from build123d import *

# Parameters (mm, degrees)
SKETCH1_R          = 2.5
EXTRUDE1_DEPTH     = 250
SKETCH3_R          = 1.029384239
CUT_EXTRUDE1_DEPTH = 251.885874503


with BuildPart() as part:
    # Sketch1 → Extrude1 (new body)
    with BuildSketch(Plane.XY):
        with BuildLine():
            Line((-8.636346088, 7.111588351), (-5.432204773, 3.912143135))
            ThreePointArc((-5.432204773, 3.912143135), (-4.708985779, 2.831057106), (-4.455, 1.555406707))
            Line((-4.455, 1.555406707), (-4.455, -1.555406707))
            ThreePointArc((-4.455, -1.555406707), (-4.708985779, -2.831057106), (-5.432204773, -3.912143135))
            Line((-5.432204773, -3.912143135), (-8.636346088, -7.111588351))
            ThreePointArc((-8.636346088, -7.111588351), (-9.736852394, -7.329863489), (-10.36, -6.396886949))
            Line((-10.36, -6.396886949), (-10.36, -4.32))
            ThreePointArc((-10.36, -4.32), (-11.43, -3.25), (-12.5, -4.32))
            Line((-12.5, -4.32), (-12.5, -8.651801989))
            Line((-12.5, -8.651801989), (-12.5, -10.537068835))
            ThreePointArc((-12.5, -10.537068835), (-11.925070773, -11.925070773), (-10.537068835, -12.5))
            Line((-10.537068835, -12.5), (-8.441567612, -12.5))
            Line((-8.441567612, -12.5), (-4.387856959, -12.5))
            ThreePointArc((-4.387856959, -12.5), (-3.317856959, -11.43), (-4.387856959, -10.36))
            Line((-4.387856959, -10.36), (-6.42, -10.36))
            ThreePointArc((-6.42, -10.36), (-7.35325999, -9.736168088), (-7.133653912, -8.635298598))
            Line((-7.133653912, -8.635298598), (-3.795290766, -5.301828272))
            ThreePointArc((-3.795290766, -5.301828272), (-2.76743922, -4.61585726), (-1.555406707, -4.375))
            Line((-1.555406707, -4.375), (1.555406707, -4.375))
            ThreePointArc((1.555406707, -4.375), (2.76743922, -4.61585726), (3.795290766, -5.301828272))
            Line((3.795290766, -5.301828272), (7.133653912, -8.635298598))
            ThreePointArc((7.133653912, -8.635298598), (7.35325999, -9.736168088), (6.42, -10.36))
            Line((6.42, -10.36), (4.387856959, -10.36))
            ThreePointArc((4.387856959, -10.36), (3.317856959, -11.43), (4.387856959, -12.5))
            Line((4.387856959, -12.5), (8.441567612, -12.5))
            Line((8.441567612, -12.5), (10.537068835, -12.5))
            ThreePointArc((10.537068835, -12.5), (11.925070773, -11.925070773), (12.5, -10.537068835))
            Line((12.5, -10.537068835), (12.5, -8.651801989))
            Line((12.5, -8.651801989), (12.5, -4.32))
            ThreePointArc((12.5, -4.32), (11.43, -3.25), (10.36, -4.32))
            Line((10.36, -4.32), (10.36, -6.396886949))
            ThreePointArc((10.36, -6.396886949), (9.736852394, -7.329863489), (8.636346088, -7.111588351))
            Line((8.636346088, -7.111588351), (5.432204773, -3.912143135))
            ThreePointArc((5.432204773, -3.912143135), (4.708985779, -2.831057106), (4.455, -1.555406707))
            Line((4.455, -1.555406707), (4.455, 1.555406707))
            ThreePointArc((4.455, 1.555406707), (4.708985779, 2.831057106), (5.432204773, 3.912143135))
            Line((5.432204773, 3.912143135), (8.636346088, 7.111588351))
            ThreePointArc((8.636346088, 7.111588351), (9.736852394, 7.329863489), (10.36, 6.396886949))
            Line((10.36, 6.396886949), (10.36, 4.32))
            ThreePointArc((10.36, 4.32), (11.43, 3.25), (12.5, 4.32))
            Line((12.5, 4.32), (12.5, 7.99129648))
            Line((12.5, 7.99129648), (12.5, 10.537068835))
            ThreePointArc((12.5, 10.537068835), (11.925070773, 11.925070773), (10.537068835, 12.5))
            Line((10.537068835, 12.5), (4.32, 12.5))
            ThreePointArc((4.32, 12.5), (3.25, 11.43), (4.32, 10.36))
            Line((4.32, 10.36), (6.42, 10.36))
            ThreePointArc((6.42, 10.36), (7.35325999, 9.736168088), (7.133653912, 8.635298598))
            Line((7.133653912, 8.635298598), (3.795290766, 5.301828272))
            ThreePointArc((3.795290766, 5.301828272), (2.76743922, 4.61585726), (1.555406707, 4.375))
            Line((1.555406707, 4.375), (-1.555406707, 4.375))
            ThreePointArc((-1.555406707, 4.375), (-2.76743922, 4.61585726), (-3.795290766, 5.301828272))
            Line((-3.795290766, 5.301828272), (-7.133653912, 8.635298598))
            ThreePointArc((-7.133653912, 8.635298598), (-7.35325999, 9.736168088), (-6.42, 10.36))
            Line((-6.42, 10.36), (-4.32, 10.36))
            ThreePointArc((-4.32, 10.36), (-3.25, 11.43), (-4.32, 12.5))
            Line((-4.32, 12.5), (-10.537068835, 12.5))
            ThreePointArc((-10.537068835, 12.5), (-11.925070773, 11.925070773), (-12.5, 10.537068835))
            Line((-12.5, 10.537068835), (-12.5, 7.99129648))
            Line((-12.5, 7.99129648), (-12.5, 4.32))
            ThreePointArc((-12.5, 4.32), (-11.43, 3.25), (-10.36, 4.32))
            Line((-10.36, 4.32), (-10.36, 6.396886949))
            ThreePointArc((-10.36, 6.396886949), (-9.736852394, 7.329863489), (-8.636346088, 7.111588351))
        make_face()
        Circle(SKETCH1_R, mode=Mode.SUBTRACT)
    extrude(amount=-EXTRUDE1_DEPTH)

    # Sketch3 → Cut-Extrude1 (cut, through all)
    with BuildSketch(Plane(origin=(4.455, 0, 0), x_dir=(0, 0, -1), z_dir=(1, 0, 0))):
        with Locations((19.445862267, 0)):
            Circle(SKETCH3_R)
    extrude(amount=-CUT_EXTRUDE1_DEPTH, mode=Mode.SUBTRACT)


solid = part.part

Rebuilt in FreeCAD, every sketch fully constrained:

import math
import FreeCAD as App
import Part
import Sketcher
from FreeCAD import Vector
Q = App.Units.Quantity

doc = App.newDocument("Part")
params = doc.addObject("Spreadsheet::Sheet", "Params")
for row, (alias, value) in enumerate([
    ("sketch1_diameter", "5 mm"),
    ("sketch1_radius", "1.01 mm"),
    ("sketch1_radius2", "1.07 mm"),
    ("sketch1_radius3", "3.17 mm"),
    ("sketch1_width", "2.1 mm"),
    ("pad1_length", "250 mm"),
], start=1):
    params.set(f"A{row}", alias)
    params.set(f"B{row}", "=" + value)
    params.setAlias(f"B{row}", alias)

body = doc.addObject("PartDesign::Body", "Body")

# Sketch on XY plane
sketch1 = doc.addObject("Sketcher::SketchObject", "Sketch")
body.addObject(sketch1)
sketch1.AttachmentSupport = (doc.XY_Plane, [""])
sketch1.MapMode = "FlatFace"
sketch1.addGeometry(Part.LineSegment(Vector(-8.636346, 7.111588, 0), Vector(-5.432205, 3.912143, 0)), False)
sketch1.addGeometry(Part.ArcOfCircle(Part.Circle(Vector(-7.785487, 1.555407, 0), Vector(0, 0, 1), 3.330487), math.radians(0), math.radians(45.042018)), False)
sketch1.addGeometry(Part.LineSegment(Vector(-4.455, 1.555407, 0), Vector(-4.455, -1.555407, 0)), False)
sketch1.addGeometry(Part.ArcOfCircle(Part.Circle(Vector(-7.785487, -1.555407, 0), Vector(0, 0, 1), 3.330487), math.radians(-45.042018), math.radians(0)), False)
sketch1.addGeometry(Part.LineSegment(Vector(-5.432205, -3.912143, 0), Vector(-8.636346, -7.111588, 0)), False)
sketch1.addGeometry(Part.ArcOfCircle(Part.Circle(Vector(-9.35, -6.396887, 0), Vector(0, 0, 1), 1.01), math.radians(-180), math.radians(-45.042018)), False)
sketch1.addGeometry(Part.LineSegment(Vector(-10.36, -6.396887, 0), Vector(-10.36, -4.32, 0)), False)
sketch1.addGeometry(Part.ArcOfCircle(Part.Circle(Vector(-11.43, -4.32, 0), Vector(0, 0, 1), 1.07), math.radians(0), math.radians(180)), False)
sketch1.addGeometry(Part.LineSegment(Vector(-12.5, -4.32, 0), Vector(-12.5, -10.537069, 0)), False)
sketch1.addGeometry(Part.ArcOfCircle(Part.Circle(Vector(-10.537069, -10.537069, 0), Vector(0, 0, 1), 1.962931), math.radians(180), math.radians(270)), False)
sketch1.addGeometry(Part.LineSegment(Vector(-10.537069, -12.5, 0), Vector(-4.387857, -12.5, 0)), False)
sketch1.addGeometry(Part.ArcOfCircle(Part.Circle(Vector(-4.387857, -11.43, 0), Vector(0, 0, 1), 1.07), math.radians(-90), math.radians(90)), False)
sketch1.addGeometry(Part.LineSegment(Vector(-4.387857, -10.36, 0), Vector(-6.42, -10.36, 0)), False)
sketch1.addGeometry(Part.ArcOfCircle(Part.Circle(Vector(-6.42, -9.35, 0), Vector(0, 0, 1), 1.01), math.radians(134.957982), math.radians(270)), False)
sketch1.addGeometry(Part.LineSegment(Vector(-7.133654, -8.635299, 0), Vector(-3.795291, -5.301828, 0)), False)
sketch1.addGeometry(Part.ArcOfCircle(Part.Circle(Vector(-1.555407, -7.545, 0), Vector(0, 0, 1), 3.17), math.radians(90), math.radians(134.957982)), False)
sketch1.addGeometry(Part.LineSegment(Vector(-1.555407, -4.375, 0), Vector(1.555407, -4.375, 0)), False)
sketch1.addGeometry(Part.ArcOfCircle(Part.Circle(Vector(1.555407, -7.545, 0), Vector(0, 0, 1), 3.17), math.radians(45.042018), math.radians(90)), False)
sketch1.addGeometry(Part.LineSegment(Vector(3.795291, -5.301828, 0), Vector(7.133654, -8.635299, 0)), False)
sketch1.addGeometry(Part.ArcOfCircle(Part.Circle(Vector(6.42, -9.35, 0), Vector(0, 0, 1), 1.01), math.radians(-90), math.radians(45.042018)), False)
sketch1.addGeometry(Part.LineSegment(Vector(6.42, -10.36, 0), Vector(4.387857, -10.36, 0)), False)
sketch1.addGeometry(Part.ArcOfCircle(Part.Circle(Vector(4.387857, -11.43, 0), Vector(0, 0, 1), 1.07), math.radians(90), math.radians(270)), False)
sketch1.addGeometry(Part.LineSegment(Vector(4.387857, -12.5, 0), Vector(10.537069, -12.5, 0)), False)
sketch1.addGeometry(Part.ArcOfCircle(Part.Circle(Vector(10.537069, -10.537069, 0), Vector(0, 0, 1), 1.962931), math.radians(-90), math.radians(0)), False)
sketch1.addGeometry(Part.LineSegment(Vector(12.5, -10.537069, 0), Vector(12.5, -4.32, 0)), False)
sketch1.addGeometry(Part.ArcOfCircle(Part.Circle(Vector(11.43, -4.32, 0), Vector(0, 0, 1), 1.07), math.radians(0), math.radians(180)), False)
sketch1.addGeometry(Part.LineSegment(Vector(10.36, -4.32, 0), Vector(10.36, -6.396887, 0)), False)
sketch1.addGeometry(Part.ArcOfCircle(Part.Circle(Vector(9.35, -6.396887, 0), Vector(0, 0, 1), 1.01), math.radians(-134.957982), math.radians(0)), False)
sketch1.addGeometry(Part.LineSegment(Vector(8.636346, -7.111588, 0), Vector(5.432205, -3.912143, 0)), False)
sketch1.addGeometry(Part.ArcOfCircle(Part.Circle(Vector(7.785487, -1.555407, 0), Vector(0, 0, 1), 3.330487), math.radians(180), math.radians(225.042018)), False)
sketch1.addGeometry(Part.LineSegment(Vector(4.455, -1.555407, 0), Vector(4.455, 1.555407, 0)), False)
sketch1.addGeometry(Part.ArcOfCircle(Part.Circle(Vector(7.785487, 1.555407, 0), Vector(0, 0, 1), 3.330487), math.radians(134.957982), math.radians(180)), False)
sketch1.addGeometry(Part.LineSegment(Vector(5.432205, 3.912143, 0), Vector(8.636346, 7.111588, 0)), False)
sketch1.addGeometry(Part.ArcOfCircle(Part.Circle(Vector(9.35, 6.396887, 0), Vector(0, 0, 1), 1.01), math.radians(0), math.radians(134.957982)), False)
sketch1.addGeometry(Part.LineSegment(Vector(10.36, 6.396887, 0), Vector(10.36, 4.32, 0)), False)
sketch1.addGeometry(Part.ArcOfCircle(Part.Circle(Vector(11.43, 4.32, 0), Vector(0, 0, 1), 1.07), math.radians(180), math.radians(360)), False)
sketch1.addGeometry(Part.LineSegment(Vector(12.5, 4.32, 0), Vector(12.5, 10.537069, 0)), False)
sketch1.addGeometry(Part.ArcOfCircle(Part.Circle(Vector(10.537069, 10.537069, 0), Vector(0, 0, 1), 1.962931), math.radians(0), math.radians(90)), False)
sketch1.addGeometry(Part.LineSegment(Vector(10.537069, 12.5, 0), Vector(4.32, 12.5, 0)), False)
sketch1.addGeometry(Part.ArcOfCircle(Part.Circle(Vector(4.32, 11.43, 0), Vector(0, 0, 1), 1.07), math.radians(90), math.radians(270)), False)
sketch1.addGeometry(Part.LineSegment(Vector(4.32, 10.36, 0), Vector(6.42, 10.36, 0)), False)
sketch1.addGeometry(Part.ArcOfCircle(Part.Circle(Vector(6.42, 9.35, 0), Vector(0, 0, 1), 1.01), math.radians(-45.042018), math.radians(90)), False)
sketch1.addGeometry(Part.LineSegment(Vector(7.133654, 8.635299, 0), Vector(3.795291, 5.301828, 0)), False)
sketch1.addGeometry(Part.ArcOfCircle(Part.Circle(Vector(1.555407, 7.545, 0), Vector(0, 0, 1), 3.17), math.radians(-90), math.radians(-45.042018)), False)
sketch1.addGeometry(Part.LineSegment(Vector(1.555407, 4.375, 0), Vector(-1.555407, 4.375, 0)), False)
sketch1.addGeometry(Part.ArcOfCircle(Part.Circle(Vector(-1.555407, 7.545, 0), Vector(0, 0, 1), 3.17), math.radians(-134.957982), math.radians(-90)), False)
sketch1.addGeometry(Part.LineSegment(Vector(-3.795291, 5.301828, 0), Vector(-7.133654, 8.635299, 0)), False)
sketch1.addGeometry(Part.ArcOfCircle(Part.Circle(Vector(-6.42, 9.35, 0), Vector(0, 0, 1), 1.01), math.radians(90), math.radians(225.042018)), False)
sketch1.addGeometry(Part.LineSegment(Vector(-6.42, 10.36, 0), Vector(-4.32, 10.36, 0)), False)
sketch1.addGeometry(Part.ArcOfCircle(Part.Circle(Vector(-4.32, 11.43, 0), Vector(0, 0, 1), 1.07), math.radians(-90), math.radians(90)), False)
sketch1.addGeometry(Part.LineSegment(Vector(-4.32, 12.5, 0), Vector(-10.537069, 12.5, 0)), False)
sketch1.addGeometry(Part.ArcOfCircle(Part.Circle(Vector(-10.537069, 10.537069, 0), Vector(0, 0, 1), 1.962931), math.radians(90), math.radians(180)), False)
sketch1.addGeometry(Part.LineSegment(Vector(-12.5, 10.537069, 0), Vector(-12.5, 4.32, 0)), False)
sketch1.addGeometry(Part.ArcOfCircle(Part.Circle(Vector(-11.43, 4.32, 0), Vector(0, 0, 1), 1.07), math.radians(180), math.radians(360)), False)
sketch1.addGeometry(Part.LineSegment(Vector(-10.36, 4.32, 0), Vector(-10.36, 6.396887, 0)), False)
sketch1.addGeometry(Part.ArcOfCircle(Part.Circle(Vector(-9.35, 6.396887, 0), Vector(0, 0, 1), 1.01), math.radians(45.042018), math.radians(180)), False)
sketch1.addGeometry(Part.Circle(Vector(0, 0, 0), Vector(0, 0, 1), 2.5), False)
sketch1.addConstraint(Sketcher.Constraint("Tangent", 0, 2, 1, 2))
sketch1.addConstraint(Sketcher.Constraint("Tangent", 1, 1, 2, 1))
sketch1.addConstraint(Sketcher.Constraint("Tangent", 2, 2, 3, 2))
sketch1.addConstraint(Sketcher.Constraint("Tangent", 3, 1, 4, 1))
sketch1.addConstraint(Sketcher.Constraint("Tangent", 4, 2, 5, 2))
sketch1.addConstraint(Sketcher.Constraint("Tangent", 5, 1, 6, 1))
sketch1.addConstraint(Sketcher.Constraint("Tangent", 6, 2, 7, 1))
sketch1.addConstraint(Sketcher.Constraint("Tangent", 7, 2, 8, 1))
sketch1.addConstraint(Sketcher.Constraint("Tangent", 8, 2, 9, 1))
sketch1.addConstraint(Sketcher.Constraint("Tangent", 9, 2, 10, 1))
sketch1.addConstraint(Sketcher.Constraint("Tangent", 10, 2, 11, 1))
sketch1.addConstraint(Sketcher.Constraint("Tangent", 11, 2, 12, 1))
sketch1.addConstraint(Sketcher.Constraint("Tangent", 12, 2, 13, 2))
sketch1.addConstraint(Sketcher.Constraint("Tangent", 13, 1, 14, 1))
sketch1.addConstraint(Sketcher.Constraint("Tangent", 14, 2, 15, 2))
sketch1.addConstraint(Sketcher.Constraint("Tangent", 15, 1, 16, 1))
sketch1.addConstraint(Sketcher.Constraint("Tangent", 16, 2, 17, 2))
sketch1.addConstraint(Sketcher.Constraint("Tangent", 17, 1, 18, 1))
sketch1.addConstraint(Sketcher.Constraint("Tangent", 18, 2, 19, 2))
sketch1.addConstraint(Sketcher.Constraint("Tangent", 19, 1, 20, 1))
sketch1.addConstraint(Sketcher.Constraint("Tangent", 20, 2, 21, 1))
sketch1.addConstraint(Sketcher.Constraint("Tangent", 21, 2, 22, 1))
sketch1.addConstraint(Sketcher.Constraint("Tangent", 22, 2, 23, 1))
sketch1.addConstraint(Sketcher.Constraint("Tangent", 23, 2, 24, 1))
sketch1.addConstraint(Sketcher.Constraint("Tangent", 24, 2, 25, 1))
sketch1.addConstraint(Sketcher.Constraint("Tangent", 25, 2, 26, 1))
sketch1.addConstraint(Sketcher.Constraint("Tangent", 26, 2, 27, 2))
sketch1.addConstraint(Sketcher.Constraint("Tangent", 27, 1, 28, 1))
sketch1.addConstraint(Sketcher.Constraint("Tangent", 28, 2, 29, 2))
sketch1.addConstraint(Sketcher.Constraint("Tangent", 29, 1, 30, 1))
sketch1.addConstraint(Sketcher.Constraint("Tangent", 30, 2, 31, 2))
sketch1.addConstraint(Sketcher.Constraint("Tangent", 31, 1, 32, 1))
sketch1.addConstraint(Sketcher.Constraint("Tangent", 32, 2, 33, 2))
sketch1.addConstraint(Sketcher.Constraint("Tangent", 33, 1, 34, 1))
sketch1.addConstraint(Sketcher.Constraint("Tangent", 34, 2, 35, 1))
sketch1.addConstraint(Sketcher.Constraint("Tangent", 35, 2, 36, 1))
sketch1.addConstraint(Sketcher.Constraint("Tangent", 36, 2, 37, 1))
sketch1.addConstraint(Sketcher.Constraint("Tangent", 37, 2, 38, 1))
sketch1.addConstraint(Sketcher.Constraint("Tangent", 38, 2, 39, 1))
sketch1.addConstraint(Sketcher.Constraint("Tangent", 39, 2, 40, 1))
sketch1.addConstraint(Sketcher.Constraint("Tangent", 40, 2, 41, 2))
sketch1.addConstraint(Sketcher.Constraint("Tangent", 41, 1, 42, 1))
sketch1.addConstraint(Sketcher.Constraint("Tangent", 42, 2, 43, 2))
sketch1.addConstraint(Sketcher.Constraint("Tangent", 43, 1, 44, 1))
sketch1.addConstraint(Sketcher.Constraint("Tangent", 44, 2, 45, 2))
sketch1.addConstraint(Sketcher.Constraint("Tangent", 45, 1, 46, 1))
sketch1.addConstraint(Sketcher.Constraint("Tangent", 46, 2, 47, 2))
sketch1.addConstraint(Sketcher.Constraint("Tangent", 47, 1, 48, 1))
sketch1.addConstraint(Sketcher.Constraint("Tangent", 48, 2, 49, 1))
sketch1.addConstraint(Sketcher.Constraint("Tangent", 49, 2, 50, 1))
sketch1.addConstraint(Sketcher.Constraint("Tangent", 50, 2, 51, 1))
sketch1.addConstraint(Sketcher.Constraint("Tangent", 51, 2, 52, 1))
sketch1.addConstraint(Sketcher.Constraint("Tangent", 52, 2, 53, 1))
sketch1.addConstraint(Sketcher.Constraint("Tangent", 53, 2, 54, 1))
sketch1.addConstraint(Sketcher.Constraint("Tangent", 54, 2, 55, 2))
sketch1.addConstraint(Sketcher.Constraint("Tangent", 55, 1, 0, 1))
sketch1.addConstraint(Sketcher.Constraint("Vertical", 2))
sketch1.addConstraint(Sketcher.Constraint("Vertical", 6))
sketch1.addConstraint(Sketcher.Constraint("Vertical", 8))
sketch1.addConstraint(Sketcher.Constraint("Horizontal", 10))
sketch1.addConstraint(Sketcher.Constraint("Horizontal", 12))
sketch1.addConstraint(Sketcher.Constraint("Horizontal", 16))
sketch1.addConstraint(Sketcher.Constraint("Horizontal", 20))
sketch1.addConstraint(Sketcher.Constraint("Horizontal", 22))
sketch1.addConstraint(Sketcher.Constraint("Vertical", 24))
sketch1.addConstraint(Sketcher.Constraint("Vertical", 26))
sketch1.addConstraint(Sketcher.Constraint("Vertical", 30))
sketch1.addConstraint(Sketcher.Constraint("Vertical", 34))
sketch1.addConstraint(Sketcher.Constraint("Vertical", 36))
sketch1.addConstraint(Sketcher.Constraint("Horizontal", 38))
sketch1.addConstraint(Sketcher.Constraint("Horizontal", 40))
sketch1.addConstraint(Sketcher.Constraint("Horizontal", 44))
sketch1.addConstraint(Sketcher.Constraint("Horizontal", 48))
sketch1.addConstraint(Sketcher.Constraint("Horizontal", 50))
sketch1.addConstraint(Sketcher.Constraint("Vertical", 52))
sketch1.addConstraint(Sketcher.Constraint("Vertical", 54))
sketch1.addConstraint(Sketcher.Constraint("Coincident", 56, 3, -1, 1))
sketch1.addConstraint(Sketcher.Constraint("Equal", 1, 3))
sketch1.addConstraint(Sketcher.Constraint("Equal", 7, 11))
sketch1.addConstraint(Sketcher.Constraint("Equal", 5, 13))
sketch1.addConstraint(Sketcher.Constraint("Equal", 15, 17))
sketch1.addConstraint(Sketcher.Constraint("Equal", 13, 19))
sketch1.addConstraint(Sketcher.Constraint("Equal", 11, 21))
sketch1.addConstraint(Sketcher.Constraint("Equal", 9, 23))
sketch1.addConstraint(Sketcher.Constraint("Equal", 21, 25))
sketch1.addConstraint(Sketcher.Constraint("Equal", 19, 27))
sketch1.addConstraint(Sketcher.Constraint("Equal", 3, 29))
sketch1.addConstraint(Sketcher.Constraint("Equal", 29, 31))
sketch1.addConstraint(Sketcher.Constraint("Equal", 27, 33))
sketch1.addConstraint(Sketcher.Constraint("Equal", 25, 35))
sketch1.addConstraint(Sketcher.Constraint("Equal", 23, 37))
sketch1.addConstraint(Sketcher.Constraint("Equal", 35, 39))
sketch1.addConstraint(Sketcher.Constraint("Equal", 33, 41))
sketch1.addConstraint(Sketcher.Constraint("Equal", 17, 43))
sketch1.addConstraint(Sketcher.Constraint("Equal", 43, 45))
sketch1.addConstraint(Sketcher.Constraint("Equal", 41, 47))
sketch1.addConstraint(Sketcher.Constraint("Equal", 39, 49))
sketch1.addConstraint(Sketcher.Constraint("Equal", 37, 51))
sketch1.addConstraint(Sketcher.Constraint("Equal", 49, 53))
sketch1.addConstraint(Sketcher.Constraint("Equal", 47, 55))
sketch1.addConstraint(Sketcher.Constraint("Symmetric", 1, 3, 29, 3, -1, 1))
sketch1.addConstraint(Sketcher.Constraint("Symmetric", 5, 3, 33, 3, -1, 1))
sketch1.addConstraint(Sketcher.Constraint("Symmetric", 13, 3, 41, 3, -1, 1))
sketch1.addConstraint(Sketcher.Constraint("Symmetric", 15, 3, 43, 3, -1, 1))
sketch1.addConstraint(Sketcher.Constraint("Symmetric", 19, 3, 47, 3, -1, 1))
sketch1.addConstraint(Sketcher.Constraint("Symmetric", 25, 3, 53, 3, -1, 1))
sketch1.addConstraint(Sketcher.Constraint("Symmetric", 13, 3, 19, 3, -2))
sketch1.addConstraint(Sketcher.Constraint("Symmetric", 7, 3, 25, 3, -2))
sketch1.addConstraint(Sketcher.Constraint("Symmetric", 4, 2, 27, 1, -2))
sketch1.addConstraint(Sketcher.Constraint("Symmetric", 0, 2, 31, 1, -2))
sketch1.addConstraint(Sketcher.Constraint("Parallel", 4, 14))
sketch1.addConstraint(Sketcher.Constraint("Parallel", 0, 18))
sketch1.addConstraint(Sketcher.Constraint("Parallel", 28, 46))
sketch1.addConstraint(Sketcher.Constraint("Horizontal", 35, 3, 53, 3))
sketch1.addConstraint(Sketcher.Constraint("Equal", 12, 20))
sketch1.addConstraint(Sketcher.Constraint("Equal", 40, 48))
sketch1.addConstraint(Sketcher.Constraint("Equal", 44, 2))
sketch1.addConstraint(Sketcher.Constraint("Equal", 50, 8))
sketch1.addConstraint(Sketcher.Constraint("Diameter", 56, Q("5 mm")))
sketch1.addConstraint(Sketcher.Constraint("Radius", 5, Q("1.01 mm")))
sketch1.addConstraint(Sketcher.Constraint("Radius", 7, Q("1.07 mm")))
sketch1.addConstraint(Sketcher.Constraint("Radius", 15, Q("3.17 mm")))
sketch1.addConstraint(Sketcher.Constraint("DistanceX", 40, 1, 40, 2, Q("2.1 mm")))
sketch1.addConstraint(Sketcher.Constraint("DistanceX", 7, 2, -1, 1, Q("12.5 mm")))
sketch1.addConstraint(Sketcher.Constraint("DistanceY", 9, 2, -1, 1, Q("12.5 mm")))
sketch1.addConstraint(Sketcher.Constraint("DistanceY", 7, 3, -1, 1, Q("4.32 mm")))
sketch1.addConstraint(Sketcher.Constraint("Radius", 9, Q("1.962931 mm")))
sketch1.addConstraint(Sketcher.Constraint("DistanceY", 15, 3, -1, 1, Q("7.545 mm")))
sketch1.addConstraint(Sketcher.Constraint("DistanceX", 1, 1, -1, 1, Q("4.455 mm")))
sketch1.addConstraint(Sketcher.Constraint("Radius", 1, Q("3.330487 mm")))
sketch1.addConstraint(Sketcher.Constraint("Distance", 14, Q("4.7177 mm")))
sketch1.addConstraint(Sketcher.Constraint("DistanceX", 10, 1, 10, 2, Q("6.149212 mm")))
sketch1.setExpression("Constraints[118]", "Params.sketch1_diameter")
sketch1.setExpression("Constraints[119]", "Params.sketch1_radius")
sketch1.setExpression("Constraints[120]", "Params.sketch1_radius2")
sketch1.setExpression("Constraints[121]", "Params.sketch1_radius3")
sketch1.setExpression("Constraints[122]", "Params.sketch1_width")
pad1 = doc.addObject("PartDesign::Pad", "Pad")
body.addObject(pad1)
pad1.Profile = sketch1
pad1.setExpression("Length", "Params.pad1_length")
pad1.Reversed = True

# Sketch on YZ plane
sketch2 = doc.addObject("Sketcher::SketchObject", "Sketch001")
body.addObject(sketch2)
sketch2.AttachmentSupport = (doc.YZ_Plane, [""])
sketch2.MapMode = "FlatFace"
sketch2.AttachmentOffset = App.Placement(Vector(0, 0, 4.455), App.Rotation())
sketch2.addGeometry(Part.Circle(Vector(0, -19.445862, 0), Vector(0, 0, 1), 1.029384), False)
sketch2.addConstraint(Sketcher.Constraint("PointOnObject", 0, 3, -2))
sketch2.addConstraint(Sketcher.Constraint("Diameter", 0, Q("2.058768 mm")))
sketch2.addConstraint(Sketcher.Constraint("DistanceY", 0, 3, -1, 1, Q("19.445862 mm")))
pocket1 = doc.addObject("PartDesign::Pocket", "Pocket")
body.addObject(pocket1)
pocket1.Profile = sketch2
pocket1.Type = "ThroughAll"

doc.recompute()
